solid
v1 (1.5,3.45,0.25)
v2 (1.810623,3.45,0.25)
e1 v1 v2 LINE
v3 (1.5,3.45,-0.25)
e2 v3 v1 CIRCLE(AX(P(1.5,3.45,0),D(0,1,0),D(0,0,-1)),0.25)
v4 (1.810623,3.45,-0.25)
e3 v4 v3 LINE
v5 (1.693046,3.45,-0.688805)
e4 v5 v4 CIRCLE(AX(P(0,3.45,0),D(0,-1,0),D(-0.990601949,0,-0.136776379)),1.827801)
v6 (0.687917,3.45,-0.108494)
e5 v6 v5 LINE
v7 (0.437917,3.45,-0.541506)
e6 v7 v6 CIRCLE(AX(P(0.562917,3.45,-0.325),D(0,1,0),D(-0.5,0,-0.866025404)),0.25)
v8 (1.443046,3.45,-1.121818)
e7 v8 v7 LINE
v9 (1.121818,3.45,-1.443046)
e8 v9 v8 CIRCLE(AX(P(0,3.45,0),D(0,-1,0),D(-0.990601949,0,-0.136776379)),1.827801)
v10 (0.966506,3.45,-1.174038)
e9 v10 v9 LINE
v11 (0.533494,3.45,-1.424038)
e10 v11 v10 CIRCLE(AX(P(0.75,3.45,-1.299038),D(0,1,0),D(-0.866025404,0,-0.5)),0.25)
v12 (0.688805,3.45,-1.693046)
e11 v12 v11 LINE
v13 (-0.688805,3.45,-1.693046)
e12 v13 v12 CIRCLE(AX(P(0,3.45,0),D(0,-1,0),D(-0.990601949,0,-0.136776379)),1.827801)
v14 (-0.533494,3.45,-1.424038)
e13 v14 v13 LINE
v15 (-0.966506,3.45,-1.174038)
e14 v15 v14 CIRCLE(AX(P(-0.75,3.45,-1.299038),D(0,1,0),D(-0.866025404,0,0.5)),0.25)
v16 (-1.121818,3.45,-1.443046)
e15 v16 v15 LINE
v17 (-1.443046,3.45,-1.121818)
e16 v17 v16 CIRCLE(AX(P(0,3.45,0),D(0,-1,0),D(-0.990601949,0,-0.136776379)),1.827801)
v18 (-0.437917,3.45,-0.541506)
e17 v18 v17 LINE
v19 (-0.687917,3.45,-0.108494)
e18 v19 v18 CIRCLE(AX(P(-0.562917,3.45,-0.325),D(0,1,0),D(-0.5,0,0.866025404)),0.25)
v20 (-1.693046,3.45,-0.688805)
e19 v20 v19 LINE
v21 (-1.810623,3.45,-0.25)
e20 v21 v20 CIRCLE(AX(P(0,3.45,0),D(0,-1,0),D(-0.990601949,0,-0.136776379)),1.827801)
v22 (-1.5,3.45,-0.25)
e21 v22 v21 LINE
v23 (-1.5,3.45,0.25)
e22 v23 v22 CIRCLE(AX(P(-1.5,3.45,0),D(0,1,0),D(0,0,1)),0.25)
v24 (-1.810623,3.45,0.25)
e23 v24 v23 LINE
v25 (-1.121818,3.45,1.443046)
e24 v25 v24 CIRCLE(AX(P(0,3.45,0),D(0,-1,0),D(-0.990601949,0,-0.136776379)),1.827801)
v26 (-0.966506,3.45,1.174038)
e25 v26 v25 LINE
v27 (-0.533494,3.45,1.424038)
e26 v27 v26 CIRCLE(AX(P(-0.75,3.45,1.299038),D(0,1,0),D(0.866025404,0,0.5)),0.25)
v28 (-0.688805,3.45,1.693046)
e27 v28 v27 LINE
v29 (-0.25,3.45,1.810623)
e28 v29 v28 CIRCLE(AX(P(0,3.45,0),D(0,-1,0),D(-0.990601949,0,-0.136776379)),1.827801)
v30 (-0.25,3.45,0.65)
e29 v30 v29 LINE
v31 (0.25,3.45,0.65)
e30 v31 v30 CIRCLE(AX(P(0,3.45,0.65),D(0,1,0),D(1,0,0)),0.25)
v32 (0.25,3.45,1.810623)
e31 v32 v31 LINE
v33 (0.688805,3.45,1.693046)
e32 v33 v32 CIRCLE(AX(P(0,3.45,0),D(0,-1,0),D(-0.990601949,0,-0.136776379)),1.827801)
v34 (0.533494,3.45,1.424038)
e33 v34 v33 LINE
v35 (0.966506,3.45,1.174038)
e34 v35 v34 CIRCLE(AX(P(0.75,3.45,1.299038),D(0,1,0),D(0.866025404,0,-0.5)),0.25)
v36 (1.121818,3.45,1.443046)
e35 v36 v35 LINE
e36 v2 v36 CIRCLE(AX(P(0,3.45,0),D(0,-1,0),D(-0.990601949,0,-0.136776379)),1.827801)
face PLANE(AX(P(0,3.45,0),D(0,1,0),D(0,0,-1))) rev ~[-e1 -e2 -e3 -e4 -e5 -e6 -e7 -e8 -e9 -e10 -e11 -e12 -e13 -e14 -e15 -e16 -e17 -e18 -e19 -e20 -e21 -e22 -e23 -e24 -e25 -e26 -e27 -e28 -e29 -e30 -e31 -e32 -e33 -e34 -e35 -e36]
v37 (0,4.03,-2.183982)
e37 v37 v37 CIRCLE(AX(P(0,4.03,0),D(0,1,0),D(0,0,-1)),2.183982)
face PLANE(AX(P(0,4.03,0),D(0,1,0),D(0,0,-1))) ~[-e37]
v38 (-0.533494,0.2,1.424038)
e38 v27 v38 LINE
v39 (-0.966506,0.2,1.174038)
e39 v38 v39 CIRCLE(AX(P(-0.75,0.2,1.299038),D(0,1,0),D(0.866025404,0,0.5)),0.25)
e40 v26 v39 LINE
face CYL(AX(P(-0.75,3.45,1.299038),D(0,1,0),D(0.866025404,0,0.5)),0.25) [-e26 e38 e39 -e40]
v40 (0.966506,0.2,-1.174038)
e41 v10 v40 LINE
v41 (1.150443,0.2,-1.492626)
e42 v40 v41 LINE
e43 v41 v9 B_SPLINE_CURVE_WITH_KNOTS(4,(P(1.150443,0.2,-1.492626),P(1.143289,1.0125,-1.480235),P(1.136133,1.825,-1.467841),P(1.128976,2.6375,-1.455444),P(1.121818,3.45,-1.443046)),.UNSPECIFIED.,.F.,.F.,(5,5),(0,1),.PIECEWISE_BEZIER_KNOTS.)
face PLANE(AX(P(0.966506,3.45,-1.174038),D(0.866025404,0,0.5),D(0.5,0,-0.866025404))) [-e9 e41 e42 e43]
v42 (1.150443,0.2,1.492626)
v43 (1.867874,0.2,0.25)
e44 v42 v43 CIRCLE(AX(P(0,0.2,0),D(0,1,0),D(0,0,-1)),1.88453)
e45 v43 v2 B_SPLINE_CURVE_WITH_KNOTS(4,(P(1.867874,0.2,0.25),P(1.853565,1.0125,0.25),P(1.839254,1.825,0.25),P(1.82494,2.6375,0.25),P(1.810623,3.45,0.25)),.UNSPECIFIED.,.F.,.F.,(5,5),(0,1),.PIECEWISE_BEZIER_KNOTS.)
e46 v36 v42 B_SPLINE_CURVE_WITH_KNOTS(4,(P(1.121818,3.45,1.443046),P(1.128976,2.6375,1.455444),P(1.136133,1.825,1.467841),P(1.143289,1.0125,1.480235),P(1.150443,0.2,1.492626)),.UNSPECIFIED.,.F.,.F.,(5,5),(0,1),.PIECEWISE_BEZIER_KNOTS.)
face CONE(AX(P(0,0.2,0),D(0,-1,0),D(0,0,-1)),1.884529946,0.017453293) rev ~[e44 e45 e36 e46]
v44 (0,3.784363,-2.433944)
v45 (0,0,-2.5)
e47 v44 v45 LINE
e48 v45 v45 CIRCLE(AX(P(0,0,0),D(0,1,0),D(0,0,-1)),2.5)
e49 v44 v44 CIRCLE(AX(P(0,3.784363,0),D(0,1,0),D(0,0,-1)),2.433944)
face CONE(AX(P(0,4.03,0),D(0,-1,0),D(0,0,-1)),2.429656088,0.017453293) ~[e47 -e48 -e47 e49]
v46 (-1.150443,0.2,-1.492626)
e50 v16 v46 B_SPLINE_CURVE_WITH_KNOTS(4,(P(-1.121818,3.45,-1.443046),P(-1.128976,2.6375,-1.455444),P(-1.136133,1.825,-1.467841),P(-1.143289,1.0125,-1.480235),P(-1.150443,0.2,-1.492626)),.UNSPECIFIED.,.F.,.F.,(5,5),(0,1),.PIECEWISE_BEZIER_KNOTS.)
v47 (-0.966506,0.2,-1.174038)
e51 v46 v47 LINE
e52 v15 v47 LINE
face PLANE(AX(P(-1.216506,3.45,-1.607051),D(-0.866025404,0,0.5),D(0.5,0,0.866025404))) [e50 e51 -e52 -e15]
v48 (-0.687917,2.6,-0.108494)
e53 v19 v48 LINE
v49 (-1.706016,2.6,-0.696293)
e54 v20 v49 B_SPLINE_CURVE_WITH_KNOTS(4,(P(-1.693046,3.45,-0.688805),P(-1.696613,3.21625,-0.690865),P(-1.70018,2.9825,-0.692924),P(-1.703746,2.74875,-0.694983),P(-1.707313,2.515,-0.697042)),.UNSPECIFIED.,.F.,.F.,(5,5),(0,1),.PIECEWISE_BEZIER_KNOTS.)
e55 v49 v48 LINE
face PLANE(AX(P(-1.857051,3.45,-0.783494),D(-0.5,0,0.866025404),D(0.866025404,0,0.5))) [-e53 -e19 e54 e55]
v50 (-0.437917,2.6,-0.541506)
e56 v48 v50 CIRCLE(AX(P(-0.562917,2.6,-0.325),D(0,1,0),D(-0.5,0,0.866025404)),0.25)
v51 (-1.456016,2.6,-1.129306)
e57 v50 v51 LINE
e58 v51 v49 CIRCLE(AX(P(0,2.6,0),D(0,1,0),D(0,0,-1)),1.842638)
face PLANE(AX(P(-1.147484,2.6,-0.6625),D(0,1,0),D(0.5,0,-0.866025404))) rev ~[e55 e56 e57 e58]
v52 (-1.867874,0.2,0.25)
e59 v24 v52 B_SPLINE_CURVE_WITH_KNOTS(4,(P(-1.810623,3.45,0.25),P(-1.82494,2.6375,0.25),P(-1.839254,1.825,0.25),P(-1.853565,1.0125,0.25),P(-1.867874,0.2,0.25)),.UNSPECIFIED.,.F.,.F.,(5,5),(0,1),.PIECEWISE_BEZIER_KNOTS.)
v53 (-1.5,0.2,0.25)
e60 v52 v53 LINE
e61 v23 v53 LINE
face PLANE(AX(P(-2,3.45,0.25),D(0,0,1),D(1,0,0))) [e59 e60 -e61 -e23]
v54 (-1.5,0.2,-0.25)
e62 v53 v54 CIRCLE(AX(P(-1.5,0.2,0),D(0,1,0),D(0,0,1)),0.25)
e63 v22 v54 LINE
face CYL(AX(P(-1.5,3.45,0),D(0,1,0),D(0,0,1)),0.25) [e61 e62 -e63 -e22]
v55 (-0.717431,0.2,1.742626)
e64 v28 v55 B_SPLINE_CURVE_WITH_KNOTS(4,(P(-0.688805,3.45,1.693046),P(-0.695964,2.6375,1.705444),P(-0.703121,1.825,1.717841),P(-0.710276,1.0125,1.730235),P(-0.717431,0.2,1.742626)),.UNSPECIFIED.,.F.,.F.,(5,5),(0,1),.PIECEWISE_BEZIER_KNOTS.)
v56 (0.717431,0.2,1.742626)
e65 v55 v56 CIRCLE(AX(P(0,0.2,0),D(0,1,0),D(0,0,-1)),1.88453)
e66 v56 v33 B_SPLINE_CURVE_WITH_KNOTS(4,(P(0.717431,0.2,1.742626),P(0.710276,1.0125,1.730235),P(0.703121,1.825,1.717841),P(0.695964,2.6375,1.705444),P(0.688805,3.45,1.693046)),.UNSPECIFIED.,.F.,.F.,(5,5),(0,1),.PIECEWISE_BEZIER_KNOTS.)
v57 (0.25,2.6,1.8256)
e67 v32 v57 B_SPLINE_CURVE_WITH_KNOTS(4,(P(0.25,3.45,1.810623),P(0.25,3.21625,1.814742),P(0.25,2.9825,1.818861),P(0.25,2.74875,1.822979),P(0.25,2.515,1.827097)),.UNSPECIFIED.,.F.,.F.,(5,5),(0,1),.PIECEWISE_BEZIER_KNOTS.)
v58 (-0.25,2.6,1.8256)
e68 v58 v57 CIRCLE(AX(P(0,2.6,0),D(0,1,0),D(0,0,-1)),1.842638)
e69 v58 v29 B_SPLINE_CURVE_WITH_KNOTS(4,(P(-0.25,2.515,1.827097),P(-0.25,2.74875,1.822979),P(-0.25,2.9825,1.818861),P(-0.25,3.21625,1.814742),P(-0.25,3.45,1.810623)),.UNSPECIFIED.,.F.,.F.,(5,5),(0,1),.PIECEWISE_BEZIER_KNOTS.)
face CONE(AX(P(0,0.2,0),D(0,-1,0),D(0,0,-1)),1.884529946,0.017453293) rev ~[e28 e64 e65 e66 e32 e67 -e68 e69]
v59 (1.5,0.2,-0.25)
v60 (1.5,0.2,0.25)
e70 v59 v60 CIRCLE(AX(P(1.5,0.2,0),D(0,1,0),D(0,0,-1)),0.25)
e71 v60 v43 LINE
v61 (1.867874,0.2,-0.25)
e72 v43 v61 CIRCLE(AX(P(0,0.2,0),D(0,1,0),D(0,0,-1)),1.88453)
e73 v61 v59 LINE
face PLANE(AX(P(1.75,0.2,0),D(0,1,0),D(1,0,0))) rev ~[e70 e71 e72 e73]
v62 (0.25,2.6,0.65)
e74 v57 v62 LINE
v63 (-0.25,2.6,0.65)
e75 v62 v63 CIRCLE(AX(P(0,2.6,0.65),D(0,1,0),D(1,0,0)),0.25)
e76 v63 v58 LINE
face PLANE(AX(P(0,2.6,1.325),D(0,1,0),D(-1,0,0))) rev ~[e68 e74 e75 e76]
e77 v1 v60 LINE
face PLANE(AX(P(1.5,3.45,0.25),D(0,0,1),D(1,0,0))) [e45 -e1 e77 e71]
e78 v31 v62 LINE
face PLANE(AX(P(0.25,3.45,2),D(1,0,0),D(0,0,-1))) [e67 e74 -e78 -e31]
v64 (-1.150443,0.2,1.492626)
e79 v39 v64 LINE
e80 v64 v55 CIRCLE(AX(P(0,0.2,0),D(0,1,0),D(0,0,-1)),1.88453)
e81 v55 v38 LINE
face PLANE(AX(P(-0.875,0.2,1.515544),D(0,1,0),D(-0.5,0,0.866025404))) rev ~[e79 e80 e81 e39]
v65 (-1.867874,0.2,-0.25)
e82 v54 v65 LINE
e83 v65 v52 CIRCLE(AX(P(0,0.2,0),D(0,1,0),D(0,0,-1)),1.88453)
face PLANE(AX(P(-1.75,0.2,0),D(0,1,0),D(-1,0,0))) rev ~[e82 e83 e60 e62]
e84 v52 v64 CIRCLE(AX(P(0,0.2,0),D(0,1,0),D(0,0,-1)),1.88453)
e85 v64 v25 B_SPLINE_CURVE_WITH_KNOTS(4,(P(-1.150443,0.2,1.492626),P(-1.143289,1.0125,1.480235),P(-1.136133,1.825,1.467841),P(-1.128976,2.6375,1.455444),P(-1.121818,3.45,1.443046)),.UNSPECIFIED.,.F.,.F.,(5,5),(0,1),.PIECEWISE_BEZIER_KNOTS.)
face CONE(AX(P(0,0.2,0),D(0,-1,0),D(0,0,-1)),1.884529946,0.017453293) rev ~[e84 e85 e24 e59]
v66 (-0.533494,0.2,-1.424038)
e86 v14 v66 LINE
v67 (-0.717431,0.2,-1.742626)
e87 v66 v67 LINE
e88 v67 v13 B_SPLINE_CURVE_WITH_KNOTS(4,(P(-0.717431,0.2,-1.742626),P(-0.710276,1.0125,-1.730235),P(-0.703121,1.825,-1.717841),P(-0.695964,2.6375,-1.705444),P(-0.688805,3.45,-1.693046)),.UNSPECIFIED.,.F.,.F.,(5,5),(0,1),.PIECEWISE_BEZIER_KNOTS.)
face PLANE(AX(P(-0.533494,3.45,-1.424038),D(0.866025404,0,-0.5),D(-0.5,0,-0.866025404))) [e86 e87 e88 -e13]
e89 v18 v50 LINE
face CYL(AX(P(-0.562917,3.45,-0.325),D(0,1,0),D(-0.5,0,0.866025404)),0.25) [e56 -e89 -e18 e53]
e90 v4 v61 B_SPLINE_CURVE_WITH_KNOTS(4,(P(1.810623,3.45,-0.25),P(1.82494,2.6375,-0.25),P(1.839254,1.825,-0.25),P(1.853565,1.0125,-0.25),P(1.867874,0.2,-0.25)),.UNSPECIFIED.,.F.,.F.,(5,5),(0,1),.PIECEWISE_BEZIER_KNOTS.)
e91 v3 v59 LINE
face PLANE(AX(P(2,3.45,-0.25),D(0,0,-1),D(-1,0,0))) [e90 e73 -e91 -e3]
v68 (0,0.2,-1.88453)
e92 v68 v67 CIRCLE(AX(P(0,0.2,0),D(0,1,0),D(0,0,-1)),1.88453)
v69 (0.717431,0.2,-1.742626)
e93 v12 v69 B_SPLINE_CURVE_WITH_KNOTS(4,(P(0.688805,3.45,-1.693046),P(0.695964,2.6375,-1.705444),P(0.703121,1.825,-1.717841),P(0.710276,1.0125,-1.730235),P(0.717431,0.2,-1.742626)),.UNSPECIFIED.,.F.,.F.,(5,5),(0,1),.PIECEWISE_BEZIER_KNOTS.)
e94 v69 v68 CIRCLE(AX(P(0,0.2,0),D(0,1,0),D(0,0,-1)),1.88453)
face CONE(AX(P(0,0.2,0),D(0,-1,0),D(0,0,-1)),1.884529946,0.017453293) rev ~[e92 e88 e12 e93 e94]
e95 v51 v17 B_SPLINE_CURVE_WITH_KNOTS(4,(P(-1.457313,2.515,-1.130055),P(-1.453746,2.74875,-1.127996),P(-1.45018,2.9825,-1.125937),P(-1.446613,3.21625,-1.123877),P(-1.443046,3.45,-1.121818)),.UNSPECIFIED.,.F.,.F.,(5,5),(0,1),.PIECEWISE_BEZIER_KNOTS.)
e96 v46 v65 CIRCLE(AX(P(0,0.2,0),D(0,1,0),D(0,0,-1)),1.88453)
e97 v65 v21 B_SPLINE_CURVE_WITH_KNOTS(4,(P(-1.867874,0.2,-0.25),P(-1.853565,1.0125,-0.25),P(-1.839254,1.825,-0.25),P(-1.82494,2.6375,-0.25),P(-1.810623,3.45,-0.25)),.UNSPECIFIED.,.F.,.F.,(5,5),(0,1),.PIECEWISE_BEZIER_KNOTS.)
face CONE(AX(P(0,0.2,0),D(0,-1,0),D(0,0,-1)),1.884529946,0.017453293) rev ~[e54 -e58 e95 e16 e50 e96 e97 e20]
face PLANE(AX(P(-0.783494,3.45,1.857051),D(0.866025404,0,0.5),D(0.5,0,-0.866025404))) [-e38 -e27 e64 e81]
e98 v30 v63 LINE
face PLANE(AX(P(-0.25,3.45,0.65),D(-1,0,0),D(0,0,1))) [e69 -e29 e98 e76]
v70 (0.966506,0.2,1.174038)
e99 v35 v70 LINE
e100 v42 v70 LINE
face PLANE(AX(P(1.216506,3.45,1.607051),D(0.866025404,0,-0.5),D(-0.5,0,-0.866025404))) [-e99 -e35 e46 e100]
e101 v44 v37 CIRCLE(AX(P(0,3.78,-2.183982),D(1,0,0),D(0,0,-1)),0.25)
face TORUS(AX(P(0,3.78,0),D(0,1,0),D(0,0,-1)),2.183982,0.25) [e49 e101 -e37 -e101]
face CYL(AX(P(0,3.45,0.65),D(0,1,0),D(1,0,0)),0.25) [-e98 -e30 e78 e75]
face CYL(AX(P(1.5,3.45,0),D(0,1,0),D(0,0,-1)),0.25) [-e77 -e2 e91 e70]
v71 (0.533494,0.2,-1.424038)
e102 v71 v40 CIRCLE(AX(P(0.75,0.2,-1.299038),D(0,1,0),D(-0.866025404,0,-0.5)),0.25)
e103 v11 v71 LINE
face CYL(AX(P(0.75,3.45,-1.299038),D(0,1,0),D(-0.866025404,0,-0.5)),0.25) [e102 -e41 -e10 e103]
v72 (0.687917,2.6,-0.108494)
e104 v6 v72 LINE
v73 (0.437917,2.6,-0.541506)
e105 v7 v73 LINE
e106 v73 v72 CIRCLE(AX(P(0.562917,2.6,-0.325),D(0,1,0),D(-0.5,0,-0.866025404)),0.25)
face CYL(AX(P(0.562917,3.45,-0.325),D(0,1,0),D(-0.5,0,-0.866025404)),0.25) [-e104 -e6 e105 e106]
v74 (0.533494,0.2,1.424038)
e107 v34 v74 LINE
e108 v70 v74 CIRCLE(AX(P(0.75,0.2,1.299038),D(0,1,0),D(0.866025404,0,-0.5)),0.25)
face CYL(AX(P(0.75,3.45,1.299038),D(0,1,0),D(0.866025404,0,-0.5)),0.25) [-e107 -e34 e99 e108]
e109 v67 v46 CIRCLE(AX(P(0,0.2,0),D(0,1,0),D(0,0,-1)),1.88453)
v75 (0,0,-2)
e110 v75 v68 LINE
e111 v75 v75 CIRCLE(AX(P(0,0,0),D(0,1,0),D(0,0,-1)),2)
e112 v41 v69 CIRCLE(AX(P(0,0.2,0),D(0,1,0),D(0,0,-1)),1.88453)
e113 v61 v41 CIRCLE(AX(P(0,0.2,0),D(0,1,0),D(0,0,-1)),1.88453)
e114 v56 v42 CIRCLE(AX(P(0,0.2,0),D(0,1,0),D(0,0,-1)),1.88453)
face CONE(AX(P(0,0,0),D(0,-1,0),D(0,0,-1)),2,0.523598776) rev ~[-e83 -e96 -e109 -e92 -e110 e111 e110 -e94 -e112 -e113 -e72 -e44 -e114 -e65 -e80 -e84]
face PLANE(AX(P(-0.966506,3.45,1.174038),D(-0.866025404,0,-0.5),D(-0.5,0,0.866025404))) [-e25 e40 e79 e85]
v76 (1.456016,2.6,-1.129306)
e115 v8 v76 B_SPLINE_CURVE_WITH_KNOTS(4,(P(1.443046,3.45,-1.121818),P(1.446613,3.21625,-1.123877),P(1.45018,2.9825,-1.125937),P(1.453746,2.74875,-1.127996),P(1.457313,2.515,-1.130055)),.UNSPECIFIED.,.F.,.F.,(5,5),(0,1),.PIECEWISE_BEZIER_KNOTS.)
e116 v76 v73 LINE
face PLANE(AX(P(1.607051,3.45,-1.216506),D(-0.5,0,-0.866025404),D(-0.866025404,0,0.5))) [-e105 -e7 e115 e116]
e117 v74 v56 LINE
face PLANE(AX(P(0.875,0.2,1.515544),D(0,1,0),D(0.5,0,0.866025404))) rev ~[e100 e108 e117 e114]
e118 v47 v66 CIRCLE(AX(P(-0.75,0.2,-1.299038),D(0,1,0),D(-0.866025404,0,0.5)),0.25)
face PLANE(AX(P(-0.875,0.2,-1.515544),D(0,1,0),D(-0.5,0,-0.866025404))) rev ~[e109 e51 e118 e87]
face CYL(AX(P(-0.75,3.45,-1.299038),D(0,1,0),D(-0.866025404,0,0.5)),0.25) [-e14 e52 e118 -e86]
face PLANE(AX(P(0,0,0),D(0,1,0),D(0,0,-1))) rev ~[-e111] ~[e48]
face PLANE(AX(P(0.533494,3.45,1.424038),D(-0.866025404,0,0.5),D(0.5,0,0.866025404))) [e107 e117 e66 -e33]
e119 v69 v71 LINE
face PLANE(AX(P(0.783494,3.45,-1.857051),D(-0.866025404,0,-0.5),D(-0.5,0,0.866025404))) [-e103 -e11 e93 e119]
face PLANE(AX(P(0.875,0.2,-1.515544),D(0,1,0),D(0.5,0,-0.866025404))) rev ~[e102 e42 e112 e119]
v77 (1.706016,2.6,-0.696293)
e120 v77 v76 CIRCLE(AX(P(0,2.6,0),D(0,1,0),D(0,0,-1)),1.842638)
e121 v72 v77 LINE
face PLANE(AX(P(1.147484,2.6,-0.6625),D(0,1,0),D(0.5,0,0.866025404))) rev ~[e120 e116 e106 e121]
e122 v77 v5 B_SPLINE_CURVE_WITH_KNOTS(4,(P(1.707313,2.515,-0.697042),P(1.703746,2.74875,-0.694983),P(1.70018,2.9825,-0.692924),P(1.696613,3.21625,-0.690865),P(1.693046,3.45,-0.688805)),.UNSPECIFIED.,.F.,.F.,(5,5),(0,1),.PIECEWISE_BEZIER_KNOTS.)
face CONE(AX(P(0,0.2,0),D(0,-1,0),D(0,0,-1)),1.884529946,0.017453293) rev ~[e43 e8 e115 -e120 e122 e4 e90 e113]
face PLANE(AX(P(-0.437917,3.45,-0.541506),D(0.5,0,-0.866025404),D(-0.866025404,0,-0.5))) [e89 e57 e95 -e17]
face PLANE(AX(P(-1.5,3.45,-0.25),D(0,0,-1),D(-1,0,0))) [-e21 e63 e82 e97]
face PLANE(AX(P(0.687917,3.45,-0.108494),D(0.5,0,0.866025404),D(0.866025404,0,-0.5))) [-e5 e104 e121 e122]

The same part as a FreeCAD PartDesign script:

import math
import FreeCAD as App
import Part
import Sketcher
from FreeCAD import Vector
Q = App.Units.Quantity


def edges_at(feature, points):
    """Names of the edges that pass closest to the given points."""
    edges = feature.Shape.Edges
    near = lambda p: min(range(len(edges)), key=lambda i: edges[i].distToShape(Part.Vertex(*p))[0])
    return sorted({f"Edge{near(p) + 1}" for p in points})


def add_polygon(sketch, points):
    """Adds a closed chain of lines whose ends are joined by coincident constraints."""
    first, n = sketch.GeometryCount, len(points)
    for a, b in zip(points, points[1:] + points[:1]):
        sketch.addGeometry(Part.LineSegment(App.Vector(*a, 0), App.Vector(*b, 0)), False)
    for i in range(n):
        sketch.addConstraint(Sketcher.Constraint("Coincident", first + i, 2, first + (i + 1) % n, 1))

doc = App.newDocument("Part")
body = doc.addObject("PartDesign::Body", "Body")

# Sketch on XY plane
sketch1 = doc.addObject("Sketcher::SketchObject", "Sketch")
body.addObject(sketch1)
sketch1.AttachmentSupport = (doc.XY_Plane, [""])
sketch1.MapMode = "FlatFace"
add_polygon(sketch1, [(-1.83, 3.45), (0, 3.45), (0, 4.03), (-2.43, 4.03), (-2.5, 0), (-2, 0), (-1.88, 0.2)])  # lines 0-6
sketch1.addConstraint([
    Sketcher.Constraint("Horizontal", 0),
    Sketcher.Constraint("Vertical", 1),
    Sketcher.Constraint("Horizontal", 2),
    Sketcher.Constraint("Horizontal", 4),
    Sketcher.Constraint("PointOnObject", 0, 2, -2),
    Sketcher.Constraint("PointOnObject", 3, 2, -1),
    Sketcher.Constraint("Parallel", 3, 6),
    Sketcher.Constraint("Angle", 3, Q("-91 deg")),
    Sketcher.Constraint("Angle", 5, Q("60 deg")),
    Sketcher.Constraint("DistanceX", 4, 1, 4, 2, 0.5),
    Sketcher.Constraint("DistanceX", 4, 2, -1, 1, 2.0),
    Sketcher.Constraint("DistanceY", 1, 1, 1, 2, 0.58),
    Sketcher.Constraint("DistanceY", -1, 1, 5, 2, 0.2),
    Sketcher.Constraint("DistanceY", -1, 1, 0, 2, 3.45),
])
revolution = doc.addObject("PartDesign::Revolution", "Revolution")
body.addObject(revolution)
revolution.Profile = sketch1
revolution.ReferenceAxis = (sketch1, ["V_Axis"])
revolution.Angle = 360

# Sketch on XZ plane
sketch2 = doc.addObject("Sketcher::SketchObject", "Sketch001")
body.addObject(sketch2)
sketch2.AttachmentSupport = (doc.XZ_Plane, [""])
sketch2.MapMode = "FlatFace"
sketch2.AttachmentOffset = App.Placement(Vector(0, 0, -3.45), App.Rotation())
sketch2.addGeometry([
    Part.LineSegment(Vector(-1.5, 0.25, 0), Vector(-2, 0.25, 0)),
    Part.ArcOfCircle(Part.Circle(Vector(-2, 0, 0), Vector(0, 0, 1), 0.25), math.radians(90), math.radians(270)),
    Part.LineSegment(Vector(-2, -0.25, 0), Vector(-1.5, -0.25, 0)),
    Part.ArcOfCircle(Part.Circle(Vector(-1.5, 0, 0), Vector(0, 0, 1), 0.25), math.radians(-90), math.radians(90)),
], False)
sketch2.addConstraint([
    Sketcher.Constraint("Tangent", 0, 2, 1, 1),
    Sketcher.Constraint("Tangent", 1, 2, 2, 1),
    Sketcher.Constraint("Tangent", 2, 2, 3, 1),
    Sketcher.Constraint("Tangent", 3, 2, 0, 1),
    Sketcher.Constraint("Horizontal", 0),
    Sketcher.Constraint("Horizontal", 2),
    Sketcher.Constraint("PointOnObject", 1, 3, -1),
    Sketcher.Constraint("Radius", 1, 0.25),
    Sketcher.Constraint("DistanceX", 0, 2, 0, 1, 0.5),
    Sketcher.Constraint("DistanceX", 1, 3, -1, 1, 2.0),
])
pad1 = doc.addObject("PartDesign::Pad", "Pad")
body.addObject(pad1)
pad1.Profile = sketch2
pad1.Length = 3.25
doc.recompute()

polarpattern = doc.addObject("PartDesign::PolarPattern", "PolarPattern")
body.addObject(polarpattern)
polarpattern.Originals = [pad1]
polarpattern.Axis = (doc.Y_Axis, [""])
polarpattern.Angle = 360
polarpattern.Occurrences = 6
body.Tip = polarpattern

# Sketch on XZ plane
sketch3 = doc.addObject("Sketcher::SketchObject", "Sketch002")
body.addObject(sketch3)
sketch3.AttachmentSupport = (doc.XZ_Plane, [""])
sketch3.MapMode = "FlatFace"
sketch3.AttachmentOffset = App.Placement(Vector(0, 0, -3.45), App.Rotation())
sketch3.addGeometry([
    Part.LineSegment(Vector(-0.25, 2, 0), Vector(-0.25, 0.65, 0)),
    Part.ArcOfCircle(Part.Circle(Vector(0, 0.65, 0), Vector(0, 0, 1), 0.25), math.radians(180), math.radians(360)),
    Part.LineSegment(Vector(0.25, 0.65, 0), Vector(0.25, 2, 0)),
    Part.ArcOfCircle(Part.Circle(Vector(0, 2, 0), Vector(0, 0, 1), 0.25), math.radians(0), math.radians(180)),
], False)
sketch3.addConstraint([
    Sketcher.Constraint("Tangent", 0, 2, 1, 1),
    Sketcher.Constraint("Tangent", 1, 2, 2, 1),
    Sketcher.Constraint("Tangent", 2, 2, 3, 1),
    Sketcher.Constraint("Tangent", 3, 2, 0, 1),
    Sketcher.Constraint("Vertical", 0),
    Sketcher.Constraint("Vertical", 2),
    Sketcher.Constraint("PointOnObject", 1, 3, -2),
    Sketcher.Constraint("Radius", 1, 0.25),
    Sketcher.Constraint("DistanceY", -1, 1, 3, 3, 2.0),
    Sketcher.Constraint("DistanceY", 0, 2, 0, 1, 1.35),
])
pad2 = doc.addObject("PartDesign::Pad", "Pad001")
body.addObject(pad2)
pad2.Profile = sketch3
pad2.Length = 0.85
doc.recompute()

polarpattern2 = doc.addObject("PartDesign::PolarPattern", "PolarPattern001")
body.addObject(polarpattern2)
polarpattern2.Originals = [pad2]
polarpattern2.Axis = (doc.Y_Axis, [""])
polarpattern2.Angle = 360
polarpattern2.Occurrences = 3
body.Tip = polarpattern2
doc.recompute()

fillet = doc.addObject("PartDesign::Fillet", "Fillet")
body.addObject(fillet)
fillet.Base = (polarpattern2, edges_at(polarpattern2, [(0, 4.03, 2.43)]))
fillet.Radius = 0.25

doc.recompute()
